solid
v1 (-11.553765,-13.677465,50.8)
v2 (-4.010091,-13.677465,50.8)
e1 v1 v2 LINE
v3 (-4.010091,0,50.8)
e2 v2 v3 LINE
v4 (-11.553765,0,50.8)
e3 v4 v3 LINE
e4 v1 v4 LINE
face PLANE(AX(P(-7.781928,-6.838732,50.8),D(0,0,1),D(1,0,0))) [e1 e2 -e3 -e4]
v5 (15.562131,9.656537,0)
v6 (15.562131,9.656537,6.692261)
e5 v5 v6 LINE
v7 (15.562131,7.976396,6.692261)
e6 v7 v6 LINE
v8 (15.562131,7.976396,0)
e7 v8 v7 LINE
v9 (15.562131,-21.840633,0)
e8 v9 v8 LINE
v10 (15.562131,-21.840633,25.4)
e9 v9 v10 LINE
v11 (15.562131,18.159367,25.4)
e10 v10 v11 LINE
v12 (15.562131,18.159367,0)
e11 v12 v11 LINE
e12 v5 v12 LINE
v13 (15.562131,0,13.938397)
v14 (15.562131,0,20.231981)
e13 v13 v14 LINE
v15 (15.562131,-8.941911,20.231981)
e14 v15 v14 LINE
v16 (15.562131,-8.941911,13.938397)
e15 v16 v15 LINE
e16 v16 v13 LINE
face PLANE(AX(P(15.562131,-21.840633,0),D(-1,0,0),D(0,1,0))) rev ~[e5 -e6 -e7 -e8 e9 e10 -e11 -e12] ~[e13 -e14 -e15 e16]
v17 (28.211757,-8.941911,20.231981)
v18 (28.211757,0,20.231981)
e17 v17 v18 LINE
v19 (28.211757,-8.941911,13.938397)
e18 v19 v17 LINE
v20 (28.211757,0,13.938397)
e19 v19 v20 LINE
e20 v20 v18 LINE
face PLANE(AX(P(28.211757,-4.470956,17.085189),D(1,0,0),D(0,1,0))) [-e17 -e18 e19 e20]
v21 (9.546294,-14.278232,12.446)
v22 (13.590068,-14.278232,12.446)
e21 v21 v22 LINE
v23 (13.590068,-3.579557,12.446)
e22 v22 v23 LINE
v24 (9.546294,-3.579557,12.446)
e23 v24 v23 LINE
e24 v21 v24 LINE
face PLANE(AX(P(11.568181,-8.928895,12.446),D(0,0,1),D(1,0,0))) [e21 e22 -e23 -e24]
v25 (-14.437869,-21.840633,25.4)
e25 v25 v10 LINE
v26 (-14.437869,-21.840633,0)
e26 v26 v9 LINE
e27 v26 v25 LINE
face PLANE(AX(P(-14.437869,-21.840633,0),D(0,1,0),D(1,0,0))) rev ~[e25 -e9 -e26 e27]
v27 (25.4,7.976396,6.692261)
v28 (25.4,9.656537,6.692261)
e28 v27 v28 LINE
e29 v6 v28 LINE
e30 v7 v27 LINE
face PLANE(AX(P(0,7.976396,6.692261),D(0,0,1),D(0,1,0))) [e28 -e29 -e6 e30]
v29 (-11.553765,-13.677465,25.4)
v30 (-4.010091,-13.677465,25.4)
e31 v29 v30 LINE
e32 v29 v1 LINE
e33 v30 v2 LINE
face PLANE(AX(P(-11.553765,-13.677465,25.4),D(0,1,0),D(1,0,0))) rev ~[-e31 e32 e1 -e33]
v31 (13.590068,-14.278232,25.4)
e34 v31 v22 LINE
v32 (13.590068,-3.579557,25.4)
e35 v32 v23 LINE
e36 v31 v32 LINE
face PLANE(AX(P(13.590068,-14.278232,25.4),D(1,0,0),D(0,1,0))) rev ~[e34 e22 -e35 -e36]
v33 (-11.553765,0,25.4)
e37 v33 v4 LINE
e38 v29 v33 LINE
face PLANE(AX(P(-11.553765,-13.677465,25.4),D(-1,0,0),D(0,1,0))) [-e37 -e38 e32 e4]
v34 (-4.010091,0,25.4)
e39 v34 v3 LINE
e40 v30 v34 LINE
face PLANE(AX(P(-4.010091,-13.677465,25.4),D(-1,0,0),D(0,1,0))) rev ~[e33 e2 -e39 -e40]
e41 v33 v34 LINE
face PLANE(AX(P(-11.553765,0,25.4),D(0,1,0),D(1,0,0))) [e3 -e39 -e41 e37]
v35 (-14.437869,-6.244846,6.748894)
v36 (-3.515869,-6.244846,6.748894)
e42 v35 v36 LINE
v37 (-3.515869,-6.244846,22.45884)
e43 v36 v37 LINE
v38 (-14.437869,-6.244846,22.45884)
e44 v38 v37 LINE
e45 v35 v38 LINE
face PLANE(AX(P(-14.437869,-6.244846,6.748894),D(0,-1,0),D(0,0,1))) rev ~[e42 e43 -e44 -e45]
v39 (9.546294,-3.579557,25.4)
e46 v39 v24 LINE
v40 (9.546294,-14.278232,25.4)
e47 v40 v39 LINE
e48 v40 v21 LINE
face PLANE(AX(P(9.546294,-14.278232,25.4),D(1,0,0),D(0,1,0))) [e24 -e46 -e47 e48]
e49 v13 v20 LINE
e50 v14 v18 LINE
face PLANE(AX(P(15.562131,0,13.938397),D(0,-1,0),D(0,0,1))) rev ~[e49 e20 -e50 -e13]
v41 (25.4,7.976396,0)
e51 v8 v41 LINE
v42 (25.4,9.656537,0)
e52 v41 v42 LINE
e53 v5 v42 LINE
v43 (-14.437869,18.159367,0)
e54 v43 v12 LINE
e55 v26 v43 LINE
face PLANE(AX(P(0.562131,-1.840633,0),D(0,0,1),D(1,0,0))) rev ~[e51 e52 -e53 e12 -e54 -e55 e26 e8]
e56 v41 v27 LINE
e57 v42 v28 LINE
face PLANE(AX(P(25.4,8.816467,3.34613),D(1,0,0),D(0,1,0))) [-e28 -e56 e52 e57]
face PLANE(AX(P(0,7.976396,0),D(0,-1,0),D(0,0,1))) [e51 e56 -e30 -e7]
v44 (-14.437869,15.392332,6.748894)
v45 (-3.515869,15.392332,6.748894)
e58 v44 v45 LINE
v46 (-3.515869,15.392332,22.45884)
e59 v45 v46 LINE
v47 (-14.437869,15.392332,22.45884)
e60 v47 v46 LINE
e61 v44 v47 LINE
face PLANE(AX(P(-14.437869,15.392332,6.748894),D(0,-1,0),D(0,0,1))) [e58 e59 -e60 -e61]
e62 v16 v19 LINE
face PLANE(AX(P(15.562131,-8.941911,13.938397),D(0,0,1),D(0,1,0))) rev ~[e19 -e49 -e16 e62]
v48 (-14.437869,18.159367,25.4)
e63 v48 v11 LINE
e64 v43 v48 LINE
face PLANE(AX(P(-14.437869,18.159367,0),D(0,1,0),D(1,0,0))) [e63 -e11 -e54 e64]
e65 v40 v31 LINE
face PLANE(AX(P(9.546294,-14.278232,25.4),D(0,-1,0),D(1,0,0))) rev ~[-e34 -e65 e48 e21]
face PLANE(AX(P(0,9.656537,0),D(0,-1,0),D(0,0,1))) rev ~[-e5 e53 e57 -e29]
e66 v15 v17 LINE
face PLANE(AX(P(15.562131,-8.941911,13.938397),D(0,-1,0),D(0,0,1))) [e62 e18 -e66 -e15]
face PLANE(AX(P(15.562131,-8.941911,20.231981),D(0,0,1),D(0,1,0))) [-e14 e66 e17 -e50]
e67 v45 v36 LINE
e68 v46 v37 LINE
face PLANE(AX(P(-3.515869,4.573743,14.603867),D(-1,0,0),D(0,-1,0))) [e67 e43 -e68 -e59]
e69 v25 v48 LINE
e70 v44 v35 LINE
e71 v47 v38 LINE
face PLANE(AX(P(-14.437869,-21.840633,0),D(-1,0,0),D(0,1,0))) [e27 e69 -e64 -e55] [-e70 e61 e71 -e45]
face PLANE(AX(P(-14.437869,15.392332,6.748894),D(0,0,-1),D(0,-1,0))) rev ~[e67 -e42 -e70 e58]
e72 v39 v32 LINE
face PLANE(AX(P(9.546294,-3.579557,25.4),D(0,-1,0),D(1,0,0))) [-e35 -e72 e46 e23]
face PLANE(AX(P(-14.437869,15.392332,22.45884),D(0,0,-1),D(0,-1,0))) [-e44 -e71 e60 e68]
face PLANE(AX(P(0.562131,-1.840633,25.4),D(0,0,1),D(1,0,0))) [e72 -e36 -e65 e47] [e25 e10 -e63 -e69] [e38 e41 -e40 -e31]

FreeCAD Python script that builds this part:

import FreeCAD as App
import Part
import Sketcher

V = App.Vector
Q = App.Units.Quantity


def add_polygon(sketch, points):
    """Adds a closed chain of lines whose ends are joined by coincident constraints."""
    first, n = sketch.GeometryCount, len(points)
    for a, b in zip(points, points[1:] + points[:1]):
        sketch.addGeometry(Part.LineSegment(App.Vector(*a, 0), App.Vector(*b, 0)), False)
    for i in range(n):
        sketch.addConstraint(Sketcher.Constraint("Coincident", first + i, 2, first + (i + 1) % n, 1))

doc = App.newDocument("Part")
body = doc.addObject("PartDesign::Body", "Body")

# Sketch on XY plane
sketch1 = body.newObject("Sketcher::SketchObject", "Sketch")
sketch1.AttachmentSupport = (doc.getObject("XY_Plane"), [""])
sketch1.MapMode = "FlatFace"
add_polygon(sketch1, [(-14.437869, 18.159367), (-14.437869, -21.840633), (15.562131, -21.840633), (15.562131, 18.159367)])  # lines 0-3
sketch1.addConstraint(Sketcher.Constraint("Vertical", 0))
sketch1.addConstraint(Sketcher.Constraint("Horizontal", 1))
sketch1.addConstraint(Sketcher.Constraint("Vertical", 2))
sketch1.addConstraint(Sketcher.Constraint("Horizontal", 3))
sketch1.addConstraint(Sketcher.Constraint("DistanceX", 1, 1, 1, 2, Q("30 mm")))
sketch1.addConstraint(Sketcher.Constraint("DistanceY", 0, 2, 0, 1, Q("40 mm")))
sketch1.addConstraint(Sketcher.Constraint("DistanceX", 0, 2, -1, 1, Q("14.437869 mm")))
sketch1.addConstraint(Sketcher.Constraint("DistanceY", 0, 2, -1, 1, Q("21.840633 mm")))
pad1 = body.newObject("PartDesign::Pad", "Pad")
pad1.Profile = sketch1
pad1.Length = Q("1 in")

# Sketch on XY plane
sketch2 = body.newObject("Sketcher::SketchObject", "Sketch001")
sketch2.AttachmentSupport = (doc.getObject("XY_Plane"), [""])
sketch2.MapMode = "FlatFace"
sketch2.AttachmentOffset = App.Placement(V(0, 0, 1 * 25.4), App.Rotation())
add_polygon(sketch2, [(-11.553765, 0), (-11.553765, -13.677465), (-4.010091, -13.677465), (-4.010091, 0)])  # lines 0-3
sketch2.addConstraint(Sketcher.Constraint("Vertical", 0))
sketch2.addConstraint(Sketcher.Constraint("Horizontal", 1))
sketch2.addConstraint(Sketcher.Constraint("Vertical", 2))
sketch2.addConstraint(Sketcher.Constraint("Horizontal", 3))
sketch2.addConstraint(Sketcher.Constraint("PointOnObject", 2, 2, -1))
sketch2.addConstraint(Sketcher.Constraint("DistanceX", 1, 1, 1, 2, Q("7.543675 mm")))
sketch2.addConstraint(Sketcher.Constraint("DistanceY", 0, 2, 0, 1, Q("13.677465 mm")))
sketch2.addConstraint(Sketcher.Constraint("DistanceX", 1, 2, -1, 1, Q("4.010091 mm")))
pad2 = body.newObject("PartDesign::Pad", "Pad001")
pad2.Profile = sketch2
pad2.Length = Q("1 in")

# Sketch on XY plane
sketch3 = body.newObject("Sketcher::SketchObject", "Sketch002")
sketch3.AttachmentSupport = (doc.getObject("XY_Plane"), [""])
sketch3.MapMode = "FlatFace"
sketch3.AttachmentOffset = App.Placement(V(0, 0, 1 * 25.4), App.Rotation())
add_polygon(sketch3, [(9.546294, -3.579557), (9.546294, -14.278232), (13.590068, -14.278232), (13.590068, -3.579557)])  # lines 0-3
sketch3.addConstraint(Sketcher.Constraint("Vertical", 0))
sketch3.addConstraint(Sketcher.Constraint("Horizontal", 1))
sketch3.addConstraint(Sketcher.Constraint("Vertical", 2))
sketch3.addConstraint(Sketcher.Constraint("Horizontal", 3))
sketch3.addConstraint(Sketcher.Constraint("DistanceX", 1, 1, 1, 2, Q("4.043774 mm")))
sketch3.addConstraint(Sketcher.Constraint("DistanceY", 0, 2, 0, 1, Q("10.698675 mm")))
sketch3.addConstraint(Sketcher.Constraint("DistanceX", -1, 1, 0, 2, Q("9.546294 mm")))
sketch3.addConstraint(Sketcher.Constraint("DistanceY", 0, 2, -1, 1, Q("14.278232 mm")))
pocket1 = body.newObject("PartDesign::Pocket", "Pocket")
pocket1.Profile = sketch3
pocket1.Length = Q("0.51 in")

# Sketch on YZ plane
sketch4 = body.newObject("Sketcher::SketchObject", "Sketch003")
sketch4.AttachmentSupport = (doc.getObject("YZ_Plane"), [""])
sketch4.MapMode = "FlatFace"
add_polygon(sketch4, [(7.976396, 6.692261), (7.976396, 0), (9.656537, 0), (9.656537, 6.692261)])  # lines 0-3
sketch4.addConstraint(Sketcher.Constraint("Vertical", 0))
sketch4.addConstraint(Sketcher.Constraint("Horizontal", 1))
sketch4.addConstraint(Sketcher.Constraint("Vertical", 2))
sketch4.addConstraint(Sketcher.Constraint("Horizontal", 3))
sketch4.addConstraint(Sketcher.Constraint("PointOnObject", 0, 2, -1))
sketch4.addConstraint(Sketcher.Constraint("DistanceX", 1, 1, 1, 2, Q("1.680141 mm")))
sketch4.addConstraint(Sketcher.Constraint("DistanceY", 0, 2, 0, 1, Q("6.692261 mm")))
sketch4.addConstraint(Sketcher.Constraint("DistanceX", -1, 1, 0, 2, Q("7.976396 mm")))
pad3 = body.newObject("PartDesign::Pad", "Pad002")
pad3.Profile = sketch4
pad3.Length = Q("1 in")

# Sketch on YZ plane
sketch5 = body.newObject("Sketcher::SketchObject", "Sketch004")
sketch5.AttachmentSupport = (doc.getObject("YZ_Plane"), [""])
sketch5.MapMode = "FlatFace"
sketch5.AttachmentOffset = App.Placement(V(0, 0, -14.437869), App.Rotation())
add_polygon(sketch5, [(15.392332, 22.45884), (15.392332, 6.748894), (-6.244846, 6.748894), (-6.244846, 22.45884)])  # lines 0-3
sketch5.addConstraint(Sketcher.Constraint("Vertical", 0))
sketch5.addConstraint(Sketcher.Constraint("Horizontal", 1))
sketch5.addConstraint(Sketcher.Constraint("Vertical", 2))
sketch5.addConstraint(Sketcher.Constraint("Horizontal", 3))
sketch5.addConstraint(Sketcher.Constraint("DistanceX", 1, 2, 1, 1, Q("21.637178 mm")))
sketch5.addConstraint(Sketcher.Constraint("DistanceY", 0, 2, 0, 1, Q("15.709946 mm")))
sketch5.addConstraint(Sketcher.Constraint("DistanceY", -1, 1, 2, 2, Q("22.45884 mm")))
sketch5.addConstraint(Sketcher.Constraint("DistanceX", -1, 1, 0, 2, Q("15.392332 mm")))
pocket2 = body.newObject("PartDesign::Pocket", "Pocket001")
pocket2.Profile = sketch5
pocket2.Length = Q("0.43 in")
pocket2.Reversed = True

# Sketch on YZ plane
sketch6 = body.newObject("Sketcher::SketchObject", "Sketch005")
sketch6.AttachmentSupport = (doc.getObject("YZ_Plane"), [""])
sketch6.MapMode = "FlatFace"
sketch6.AttachmentOffset = App.Placement(V(0, 0, 15.562131), App.Rotation())
add_polygon(sketch6, [(-8.941911, 20.231981), (-8.941911, 13.938397), (0, 13.938397), (0, 20.231981)])  # lines 0-3
sketch6.addConstraint(Sketcher.Constraint("Vertical", 0))
sketch6.addConstraint(Sketcher.Constraint("Horizontal", 1))
sketch6.addConstraint(Sketcher.Constraint("Vertical", 2))
sketch6.addConstraint(Sketcher.Constraint("Horizontal", 3))
sketch6.addConstraint(Sketcher.Constraint("PointOnObject", 1, 2, -2))
sketch6.addConstraint(Sketcher.Constraint("DistanceX", 1, 1, 1, 2, Q("8.941911 mm")))
sketch6.addConstraint(Sketcher.Constraint("DistanceY", 0, 2, 0, 1, Q("6.293584 mm")))
sketch6.addConstraint(Sketcher.Constraint("DistanceY", -1, 1, 2, 2, Q("20.231981 mm")))
pad4 = body.newObject("PartDesign::Pad", "Pad003")
pad4.Profile = sketch6
pad4.Length = 12.649626

doc.recompute()
